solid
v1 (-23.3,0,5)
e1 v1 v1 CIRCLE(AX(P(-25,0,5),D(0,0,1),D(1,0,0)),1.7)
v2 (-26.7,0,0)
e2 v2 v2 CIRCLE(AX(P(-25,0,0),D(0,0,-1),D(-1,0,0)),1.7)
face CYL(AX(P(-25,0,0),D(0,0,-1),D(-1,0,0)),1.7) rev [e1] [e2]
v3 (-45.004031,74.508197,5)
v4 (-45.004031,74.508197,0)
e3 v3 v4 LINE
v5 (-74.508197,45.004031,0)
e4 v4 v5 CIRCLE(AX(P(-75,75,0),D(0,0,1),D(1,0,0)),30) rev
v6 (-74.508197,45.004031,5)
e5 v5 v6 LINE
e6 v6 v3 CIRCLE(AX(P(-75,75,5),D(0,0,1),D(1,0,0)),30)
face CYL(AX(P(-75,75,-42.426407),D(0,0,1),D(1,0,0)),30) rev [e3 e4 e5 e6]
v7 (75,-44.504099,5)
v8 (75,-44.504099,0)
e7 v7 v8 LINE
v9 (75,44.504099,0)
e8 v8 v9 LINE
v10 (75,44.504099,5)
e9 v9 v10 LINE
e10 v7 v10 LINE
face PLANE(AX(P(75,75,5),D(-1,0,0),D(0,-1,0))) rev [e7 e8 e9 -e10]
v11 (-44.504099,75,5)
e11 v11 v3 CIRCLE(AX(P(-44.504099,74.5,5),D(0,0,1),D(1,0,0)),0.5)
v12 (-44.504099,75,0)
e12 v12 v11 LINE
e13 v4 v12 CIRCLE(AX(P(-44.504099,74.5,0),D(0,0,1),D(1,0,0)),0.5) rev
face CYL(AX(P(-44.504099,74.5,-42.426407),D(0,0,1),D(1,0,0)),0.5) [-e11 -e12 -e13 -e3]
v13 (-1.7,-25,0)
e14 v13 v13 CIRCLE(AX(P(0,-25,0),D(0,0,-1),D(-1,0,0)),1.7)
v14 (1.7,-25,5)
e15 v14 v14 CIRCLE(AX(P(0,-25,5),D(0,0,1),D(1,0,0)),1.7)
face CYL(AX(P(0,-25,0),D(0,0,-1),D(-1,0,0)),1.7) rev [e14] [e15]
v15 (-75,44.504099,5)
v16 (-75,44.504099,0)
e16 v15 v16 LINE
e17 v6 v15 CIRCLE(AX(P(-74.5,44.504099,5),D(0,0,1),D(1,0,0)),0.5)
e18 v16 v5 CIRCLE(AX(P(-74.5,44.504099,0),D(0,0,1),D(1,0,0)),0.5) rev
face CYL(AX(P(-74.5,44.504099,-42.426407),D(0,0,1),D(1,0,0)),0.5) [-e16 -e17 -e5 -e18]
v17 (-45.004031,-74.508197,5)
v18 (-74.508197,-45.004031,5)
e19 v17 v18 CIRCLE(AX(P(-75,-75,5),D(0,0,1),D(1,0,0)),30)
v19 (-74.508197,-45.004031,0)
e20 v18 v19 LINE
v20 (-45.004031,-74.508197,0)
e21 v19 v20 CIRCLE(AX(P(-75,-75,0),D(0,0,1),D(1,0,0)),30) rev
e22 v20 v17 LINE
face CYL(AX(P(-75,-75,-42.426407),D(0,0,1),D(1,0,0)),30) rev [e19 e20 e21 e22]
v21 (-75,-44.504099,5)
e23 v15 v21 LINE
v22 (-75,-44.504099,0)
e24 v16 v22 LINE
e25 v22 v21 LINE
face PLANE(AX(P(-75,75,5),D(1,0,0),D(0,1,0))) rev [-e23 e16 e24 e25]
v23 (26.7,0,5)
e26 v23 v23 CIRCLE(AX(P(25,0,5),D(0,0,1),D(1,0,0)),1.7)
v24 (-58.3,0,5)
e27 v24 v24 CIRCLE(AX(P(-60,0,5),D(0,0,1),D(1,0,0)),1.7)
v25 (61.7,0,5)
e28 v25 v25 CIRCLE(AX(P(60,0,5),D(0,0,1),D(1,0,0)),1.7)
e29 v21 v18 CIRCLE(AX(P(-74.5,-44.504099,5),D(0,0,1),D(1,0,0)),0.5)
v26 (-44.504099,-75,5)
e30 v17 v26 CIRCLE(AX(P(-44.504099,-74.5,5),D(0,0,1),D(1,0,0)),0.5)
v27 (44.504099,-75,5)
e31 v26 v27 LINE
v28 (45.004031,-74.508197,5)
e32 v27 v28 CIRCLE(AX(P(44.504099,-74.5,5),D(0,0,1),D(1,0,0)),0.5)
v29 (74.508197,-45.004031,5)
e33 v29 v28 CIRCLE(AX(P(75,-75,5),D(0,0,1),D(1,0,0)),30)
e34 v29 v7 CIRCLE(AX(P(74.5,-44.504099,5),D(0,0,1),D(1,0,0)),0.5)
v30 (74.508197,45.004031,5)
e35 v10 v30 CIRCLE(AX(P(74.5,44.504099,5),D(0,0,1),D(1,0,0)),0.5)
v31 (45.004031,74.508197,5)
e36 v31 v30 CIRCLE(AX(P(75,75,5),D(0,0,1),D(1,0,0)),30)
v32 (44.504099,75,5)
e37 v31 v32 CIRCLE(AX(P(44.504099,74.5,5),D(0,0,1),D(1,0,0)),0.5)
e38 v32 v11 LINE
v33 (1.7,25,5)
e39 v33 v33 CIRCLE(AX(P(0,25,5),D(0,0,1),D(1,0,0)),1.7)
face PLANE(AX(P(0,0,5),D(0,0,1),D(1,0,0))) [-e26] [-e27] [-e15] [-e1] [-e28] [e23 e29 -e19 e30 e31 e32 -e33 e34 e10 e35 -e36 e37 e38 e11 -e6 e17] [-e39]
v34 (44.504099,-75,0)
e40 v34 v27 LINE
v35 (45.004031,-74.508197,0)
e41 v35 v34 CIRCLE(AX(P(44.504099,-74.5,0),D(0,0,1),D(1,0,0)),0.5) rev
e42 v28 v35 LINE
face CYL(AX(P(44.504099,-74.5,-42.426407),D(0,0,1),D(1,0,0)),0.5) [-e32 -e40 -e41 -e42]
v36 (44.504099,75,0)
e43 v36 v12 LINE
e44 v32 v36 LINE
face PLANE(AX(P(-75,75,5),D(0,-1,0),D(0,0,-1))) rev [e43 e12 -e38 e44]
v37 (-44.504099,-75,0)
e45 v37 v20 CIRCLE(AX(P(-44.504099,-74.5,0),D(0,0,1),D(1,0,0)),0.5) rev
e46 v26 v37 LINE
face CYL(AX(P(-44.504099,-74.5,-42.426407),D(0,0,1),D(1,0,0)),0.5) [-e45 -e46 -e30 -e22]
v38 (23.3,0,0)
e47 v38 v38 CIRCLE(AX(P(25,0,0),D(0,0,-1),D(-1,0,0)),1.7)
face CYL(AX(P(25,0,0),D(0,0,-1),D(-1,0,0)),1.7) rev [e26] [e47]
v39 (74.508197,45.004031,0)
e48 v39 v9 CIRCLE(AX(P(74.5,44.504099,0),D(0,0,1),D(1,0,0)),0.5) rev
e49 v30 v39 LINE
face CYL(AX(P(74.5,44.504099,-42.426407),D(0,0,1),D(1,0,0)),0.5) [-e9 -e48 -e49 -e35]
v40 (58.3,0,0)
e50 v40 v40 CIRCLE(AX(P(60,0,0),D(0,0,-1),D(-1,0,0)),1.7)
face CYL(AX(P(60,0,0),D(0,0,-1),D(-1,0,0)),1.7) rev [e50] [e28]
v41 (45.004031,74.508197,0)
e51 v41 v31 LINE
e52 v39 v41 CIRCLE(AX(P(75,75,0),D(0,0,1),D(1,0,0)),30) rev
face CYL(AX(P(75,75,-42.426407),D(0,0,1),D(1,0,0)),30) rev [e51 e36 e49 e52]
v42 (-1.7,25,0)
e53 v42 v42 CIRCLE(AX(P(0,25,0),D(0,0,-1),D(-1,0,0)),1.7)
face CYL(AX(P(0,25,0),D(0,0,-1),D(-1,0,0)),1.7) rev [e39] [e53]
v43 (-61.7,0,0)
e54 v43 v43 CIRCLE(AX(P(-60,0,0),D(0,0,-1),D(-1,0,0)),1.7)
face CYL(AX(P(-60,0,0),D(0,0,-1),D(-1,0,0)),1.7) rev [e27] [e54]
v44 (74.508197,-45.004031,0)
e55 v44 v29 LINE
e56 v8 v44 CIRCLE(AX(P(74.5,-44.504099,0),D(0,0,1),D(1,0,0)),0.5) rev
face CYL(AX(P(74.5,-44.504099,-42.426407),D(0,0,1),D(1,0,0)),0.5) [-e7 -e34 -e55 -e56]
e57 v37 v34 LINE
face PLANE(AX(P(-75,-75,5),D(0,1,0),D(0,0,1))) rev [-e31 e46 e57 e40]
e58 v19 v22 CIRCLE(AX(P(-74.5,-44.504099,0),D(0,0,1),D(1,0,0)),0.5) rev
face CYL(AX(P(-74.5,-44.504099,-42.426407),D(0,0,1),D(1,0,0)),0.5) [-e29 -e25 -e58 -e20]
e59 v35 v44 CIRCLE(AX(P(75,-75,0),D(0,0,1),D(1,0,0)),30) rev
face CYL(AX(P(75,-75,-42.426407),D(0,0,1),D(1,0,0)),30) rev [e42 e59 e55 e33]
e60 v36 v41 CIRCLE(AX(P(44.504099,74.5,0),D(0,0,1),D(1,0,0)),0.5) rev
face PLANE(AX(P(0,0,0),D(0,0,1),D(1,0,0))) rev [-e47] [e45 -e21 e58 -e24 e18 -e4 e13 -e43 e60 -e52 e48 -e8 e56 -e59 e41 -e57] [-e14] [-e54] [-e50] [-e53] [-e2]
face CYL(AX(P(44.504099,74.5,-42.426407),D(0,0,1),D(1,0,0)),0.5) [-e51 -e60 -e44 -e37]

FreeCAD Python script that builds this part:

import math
import FreeCAD as App
import Part
import Sketcher

V = App.Vector


def edges_at(feature, points):
    """Names of the edges that pass closest to the given points."""
    edges = feature.Shape.Edges
    near = lambda p: min(range(len(edges)), key=lambda i: edges[i].distToShape(Part.Vertex(*p))[0])
    return sorted({f"Edge{near(p) + 1}" for p in points})


def add_polygon(sketch, points):
    """Adds a closed chain of lines whose ends are joined by coincident constraints."""
    first, n = sketch.GeometryCount, len(points)
    for a, b in zip(points, points[1:] + points[:1]):
        sketch.addGeometry(Part.LineSegment(App.Vector(*a, 0), App.Vector(*b, 0)), False)
    for i in range(n):
        sketch.addConstraint(Sketcher.Constraint("Coincident", first + i, 2, first + (i + 1) % n, 1))

doc = App.newDocument("Part")
body = doc.addObject("PartDesign::Body", "Body")

sketch1 = body.newObject("Sketcher::SketchObject", "Sketch")
sketch1.AttachmentSupport = (doc.getObject("XY_Plane"), [""])
sketch1.MapMode = "FlatFace"
add_polygon(sketch1, [(-75, 75), (-75, -75), (75, -75), (75, 75)])
sketch1.addConstraint([
    Sketcher.Constraint("Vertical", 0),
    Sketcher.Constraint("Horizontal", 1),
    Sketcher.Constraint("Vertical", 2),
    Sketcher.Constraint("Horizontal", 3),
    Sketcher.Constraint("Symmetric", 0, 2, 2, 2, -1, 1),
    Sketcher.Constraint("Equal", 3, 0),
    Sketcher.Constraint("DistanceX", 1, 1, 1, 2, 150.0),
])
pad1 = body.newObject("PartDesign::Pad", "Pad")
pad1.Profile = sketch1
pad1.Length = 5

sketch2 = body.newObject("Sketcher::SketchObject", "Sketch001")
sketch2.AttachmentSupport = (doc.getObject("XY_Plane"), [""])
sketch2.MapMode = "FlatFace"
sketch2.AttachmentOffset = App.Placement(V(0, 0, 5), App.Rotation())
sketch2.addGeometry([
    Part.LineSegment(V(75, 75, 0), V(45, 75, 0)),
    Part.ArcOfCircle(Part.Circle(V(75, 75, 0), V(0, 0, 1), 30), math.radians(180), math.radians(270)),
    Part.LineSegment(V(75, 45, 0), V(75, 75, 0)),
    Part.LineSegment(V(45, -75, 0), V(75, -75, 0)),
    Part.LineSegment(V(75, -75, 0), V(75, -45, 0)),
    Part.ArcOfCircle(Part.Circle(V(75, -75, 0), V(0, 0, 1), 30), math.radians(90), math.radians(180)),
    Part.LineSegment(V(-75, -45, 0), V(-75, -75, 0)),
    Part.LineSegment(V(-75, -75, 0), V(-45, -75, 0)),
    Part.ArcOfCircle(Part.Circle(V(-75, -75, 0), V(0, 0, 1), 30), math.radians(0), math.radians(90)),
    Part.LineSegment(V(-45, 75, 0), V(-75, 75, 0)),
    Part.LineSegment(V(-75, 75, 0), V(-75, 45, 0)),
    Part.ArcOfCircle(Part.Circle(V(-75, 75, 0), V(0, 0, 1), 30), math.radians(-90), math.radians(0)),
], False)
sketch2.addConstraint([
    Sketcher.Constraint("Coincident", 0, 2, 1, 1),
    Sketcher.Constraint("Coincident", 1, 2, 2, 1),
    Sketcher.Constraint("Coincident", 2, 2, 0, 1),
    Sketcher.Constraint("Coincident", 3, 2, 4, 1),
    Sketcher.Constraint("Coincident", 4, 2, 5, 1),
    Sketcher.Constraint("Coincident", 5, 2, 3, 1),
    Sketcher.Constraint("Coincident", 6, 2, 7, 1),
    Sketcher.Constraint("Coincident", 7, 2, 8, 1),
    Sketcher.Constraint("Coincident", 8, 2, 6, 1),
    Sketcher.Constraint("Coincident", 9, 2, 10, 1),
    Sketcher.Constraint("Coincident", 10, 2, 11, 1),
    Sketcher.Constraint("Coincident", 11, 2, 9, 1),
    Sketcher.Constraint("Horizontal", 0),
    Sketcher.Constraint("Vertical", 2),
    Sketcher.Constraint("Horizontal", 3),
    Sketcher.Constraint("Vertical", 4),
    Sketcher.Constraint("Vertical", 6),
    Sketcher.Constraint("Horizontal", 7),
    Sketcher.Constraint("Horizontal", 9),
    Sketcher.Constraint("Vertical", 10),
    Sketcher.Constraint("Coincident", 2, 2, 1, 3),
    Sketcher.Constraint("Coincident", 3, 2, 5, 3),
    Sketcher.Constraint("Coincident", 6, 2, 8, 3),
    Sketcher.Constraint("Coincident", 9, 2, 11, 3),
    Sketcher.Constraint("Equal", 1, 5),
    Sketcher.Constraint("Equal", 5, 8),
    Sketcher.Constraint("Equal", 8, 11),
    Sketcher.Constraint("Symmetric", 1, 3, 8, 3, -1, 1),
    Sketcher.Constraint("Symmetric", 5, 3, 11, 3, -1, 1),
    Sketcher.Constraint("Symmetric", 5, 3, 8, 3, -2),
    Sketcher.Constraint("Radius", 1, 30.0),
    Sketcher.Constraint("DistanceX", -1, 1, 1, 3, 75.0),
    Sketcher.Constraint("DistanceY", -1, 1, 1, 3, 75.0),
])
pocket1 = body.newObject("PartDesign::Pocket", "Pocket")
pocket1.Profile = sketch2
pocket1.Length = 5

sketch3 = body.newObject("Sketcher::SketchObject", "Sketch002")
sketch3.AttachmentSupport = (doc.getObject("XY_Plane"), [""])
sketch3.MapMode = "FlatFace"
sketch3.addGeometry([
    Part.Circle(V(0, 25, 0), V(0, 0, 1), 1.7),
    Part.Circle(V(0, -25, 0), V(0, 0, 1), 1.7),
    Part.Circle(V(-60, 0, 0), V(0, 0, 1), 1.7),
    Part.Circle(V(-25, 0, 0), V(0, 0, 1), 1.7),
    Part.Circle(V(25, 0, 0), V(0, 0, 1), 1.7),
    Part.Circle(V(60, 0, 0), V(0, 0, 1), 1.7),
], False)
sketch3.addConstraint([
    Sketcher.Constraint("Equal", 0, 1),
    Sketcher.Constraint("Equal", 1, 2),
    Sketcher.Constraint("Equal", 2, 3),
    Sketcher.Constraint("Equal", 3, 4),
    Sketcher.Constraint("Equal", 4, 5),
    Sketcher.Constraint("Symmetric", 0, 3, 1, 3, -1, 1),
    Sketcher.Constraint("Symmetric", 3, 3, 4, 3, -1, 1),
    Sketcher.Constraint("Symmetric", 2, 3, 5, 3, -1, 1),
    Sketcher.Constraint("PointOnObject", 0, 3, -2),
    Sketcher.Constraint("PointOnObject", 2, 3, -1),
    Sketcher.Constraint("PointOnObject", 3, 3, -1),
    Sketcher.Constraint("Diameter", 0, 3.4),
    Sketcher.Constraint("DistanceY", -1, 1, 0, 3, 25.0),
    Sketcher.Constraint("DistanceX", 2, 3, -1, 1, 60.0),
    Sketcher.Constraint("DistanceX", 3, 3, -1, 1, 25.0),
])
doc.recompute()
hole = body.newObject("PartDesign::Hole", "Hole")
hole.Profile = sketch3
hole.ThreadType = "None"
hole.Diameter = 3.4
hole.DepthType = "ThroughAll"
hole.Reversed = True
doc.recompute()

fillet = body.newObject("PartDesign::Fillet", "Fillet")
fillet.Base = (hole, edges_at(hole, [
    (-75, 45, 2.5),
    (-45, 75, 2.5),
    (-45, -75, 2.5),
    (-75, -45, 2.5),
    (75, -45, 2.5),
    (45, -75, 2.5),
    (75, 45, 2.5),
    (45, 75, 2.5),
]))
fillet.Radius = 0.5

doc.recompute()
